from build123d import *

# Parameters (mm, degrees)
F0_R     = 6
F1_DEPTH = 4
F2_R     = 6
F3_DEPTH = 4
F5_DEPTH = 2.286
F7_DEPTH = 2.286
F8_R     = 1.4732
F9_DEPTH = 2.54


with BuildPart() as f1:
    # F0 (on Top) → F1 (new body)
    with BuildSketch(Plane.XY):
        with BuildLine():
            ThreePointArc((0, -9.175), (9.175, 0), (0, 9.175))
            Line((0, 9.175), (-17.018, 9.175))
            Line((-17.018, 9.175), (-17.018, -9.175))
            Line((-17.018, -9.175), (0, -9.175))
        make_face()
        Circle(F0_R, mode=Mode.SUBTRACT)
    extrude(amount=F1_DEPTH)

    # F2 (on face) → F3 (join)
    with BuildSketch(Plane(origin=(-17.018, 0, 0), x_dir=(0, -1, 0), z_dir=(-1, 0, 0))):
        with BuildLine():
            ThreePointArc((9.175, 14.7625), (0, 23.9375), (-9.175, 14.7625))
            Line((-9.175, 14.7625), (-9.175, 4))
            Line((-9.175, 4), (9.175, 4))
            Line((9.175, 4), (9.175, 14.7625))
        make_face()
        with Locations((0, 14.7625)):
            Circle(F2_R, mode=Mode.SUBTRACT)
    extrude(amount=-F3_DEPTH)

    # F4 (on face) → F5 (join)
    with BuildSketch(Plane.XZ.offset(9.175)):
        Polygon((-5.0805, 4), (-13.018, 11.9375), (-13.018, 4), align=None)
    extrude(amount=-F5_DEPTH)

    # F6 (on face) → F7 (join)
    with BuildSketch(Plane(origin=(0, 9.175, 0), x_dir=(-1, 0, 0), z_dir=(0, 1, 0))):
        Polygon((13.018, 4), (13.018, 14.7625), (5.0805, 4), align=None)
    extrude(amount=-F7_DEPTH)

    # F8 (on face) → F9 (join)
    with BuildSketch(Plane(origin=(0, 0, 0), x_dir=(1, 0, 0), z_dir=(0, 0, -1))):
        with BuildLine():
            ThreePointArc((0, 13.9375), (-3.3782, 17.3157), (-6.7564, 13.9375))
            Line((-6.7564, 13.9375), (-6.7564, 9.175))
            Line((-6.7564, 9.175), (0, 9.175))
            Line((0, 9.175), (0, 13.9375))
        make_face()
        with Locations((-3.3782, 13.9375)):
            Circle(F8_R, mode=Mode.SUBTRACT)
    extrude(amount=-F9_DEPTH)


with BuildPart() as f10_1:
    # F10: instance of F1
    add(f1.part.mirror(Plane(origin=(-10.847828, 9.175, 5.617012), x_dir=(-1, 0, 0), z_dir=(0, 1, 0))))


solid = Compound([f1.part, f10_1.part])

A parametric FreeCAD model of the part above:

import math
import FreeCAD as App
import Part
import Sketcher

V = App.Vector
Q = App.Units.Quantity


def add_polygon(sketch, points):
    """Adds a closed chain of lines whose ends are joined by coincident constraints."""
    first, n = sketch.GeometryCount, len(points)
    for a, b in zip(points, points[1:] + points[:1]):
        sketch.addGeometry(Part.LineSegment(App.Vector(*a, 0), App.Vector(*b, 0)), False)
    for i in range(n):
        sketch.addConstraint(Sketcher.Constraint("Coincident", first + i, 2, first + (i + 1) % n, 1))

doc = App.newDocument("Part")
body = doc.addObject("PartDesign::Body", "Body")

sketch1 = body.newObject("Sketcher::SketchObject", "Sketch")
sketch1.AttachmentSupport = (doc.getObject("XY_Plane"), [""])
sketch1.MapMode = "FlatFace"
sketch1.addGeometry([
    Part.ArcOfCircle(Part.Circle(V(0, 0, 0), V(0, 0, 1), 9.175), math.radians(-90), math.radians(90)),
    Part.LineSegment(V(0, 9.175, 0), V(-17.018, 9.175, 0)),
    Part.LineSegment(V(-17.018, 9.175, 0), V(-17.018, -9.175, 0)),
    Part.LineSegment(V(-17.018, -9.175, 0), V(0, -9.175, 0)),
    Part.Circle(V(0, 0, 0), V(0, 0, 1), 6),
], False)
sketch1.addConstraint([
    Sketcher.Constraint("Tangent", 0, 2, 1, 1),
    Sketcher.Constraint("Coincident", 1, 2, 2, 1),
    Sketcher.Constraint("Coincident", 2, 2, 3, 1),
    Sketcher.Constraint("Tangent", 3, 2, 0, 1),
    Sketcher.Constraint("Horizontal", 1),
    Sketcher.Constraint("Vertical", 2),
    Sketcher.Constraint("Horizontal", 3),
    Sketcher.Constraint("Coincident", 0, 3, -1, 1),
    Sketcher.Constraint("Coincident", 4, 3, -1, 1),
    Sketcher.Constraint("DistanceX", 1, 2, 1, 1, Q("0.67 in")),
    Sketcher.Constraint("Diameter", 4, 12.0),
    Sketcher.Constraint("Radius", 0, 9.175),
])
pad1 = body.newObject("PartDesign::Pad", "Pad")
pad1.Profile = sketch1
pad1.Length = 4

sketch2 = body.newObject("Sketcher::SketchObject", "Sketch001")
sketch2.AttachmentSupport = (doc.getObject("YZ_Plane"), [""])
sketch2.MapMode = "FlatFace"
sketch2.AttachmentOffset = App.Placement(V(0, 0, -0.67 * 25.4), App.Rotation())
sketch2.addGeometry([
    Part.ArcOfCircle(Part.Circle(V(0, 14.7625, 0), V(0, 0, 1), 9.175), math.radians(0), math.radians(180)),
    Part.LineSegment(V(9.175, 14.7625, 0), V(9.175, 4, 0)),
    Part.LineSegment(V(9.175, 4, 0), V(-9.175, 4, 0)),
    Part.LineSegment(V(-9.175, 4, 0), V(-9.175, 14.7625, 0)),
    Part.Circle(V(0, 14.7625, 0), V(0, 0, 1), 6),
], False)
sketch2.addConstraint([
    Sketcher.Constraint("Tangent", 0, 1, 1, 1),
    Sketcher.Constraint("Coincident", 1, 2, 2, 1),
    Sketcher.Constraint("Coincident", 2, 2, 3, 1),
    Sketcher.Constraint("Tangent", 3, 2, 0, 2),
    Sketcher.Constraint("Vertical", 1),
    Sketcher.Constraint("Horizontal", 2),
    Sketcher.Constraint("Vertical", 3),
    Sketcher.Constraint("Coincident", 4, 3, 0, 3),
    Sketcher.Constraint("PointOnObject", 0, 3, -2),
    Sketcher.Constraint("Diameter", 4, 12.0),
    Sketcher.Constraint("Radius", 0, 9.175),
    Sketcher.Constraint("DistanceY", 1, 2, 1, 1, 10.7625),
    Sketcher.Constraint("DistanceY", -1, 1, 0, 3, 14.7625),
])
pad2 = body.newObject("PartDesign::Pad", "Pad001")
pad2.Profile = sketch2
pad2.Length = 4

sketch3 = body.newObject("Sketcher::SketchObject", "Sketch002")
sketch3.AttachmentSupport = (doc.getObject("XZ_Plane"), [""])
sketch3.MapMode = "FlatFace"
sketch3.AttachmentOffset = App.Placement(V(0, 0, 9.175), App.Rotation())
add_polygon(sketch3, [(-5.0805, 4), (-13.018, 11.9375), (-13.018, 4)])
sketch3.addConstraint([
    Sketcher.Constraint("Vertical", 1),
    Sketcher.Constraint("Horizontal", 2),
    Sketcher.Constraint("Equal", 2, 1),
    Sketcher.Constraint("DistanceX", 2, 1, 2, 2, Q("0.3125 in")),
    Sketcher.Constraint("DistanceX", 0, 2, -1, 1, 13.018),
    Sketcher.Constraint("DistanceY", -1, 1, 0, 2, 11.9375),
])
pad3 = body.newObject("PartDesign::Pad", "Pad002")
pad3.Profile = sketch3
pad3.Length = Q("0.09 in")
pad3.Reversed = True

sketch4 = body.newObject("Sketcher::SketchObject", "Sketch003")
sketch4.AttachmentSupport = (doc.getObject("XZ_Plane"), [""])
sketch4.MapMode = "FlatFace"
sketch4.AttachmentOffset = App.Placement(V(0, 0, -9.175), App.Rotation())
add_polygon(sketch4, [(-13.018, 4), (-13.018, 14.7625), (-5.0805, 4)])
sketch4.addConstraint([
    Sketcher.Constraint("Vertical", 0),
    Sketcher.Constraint("Horizontal", 2),
    Sketcher.Constraint("DistanceX", 2, 2, 2, 1, Q("0.3125 in")),
    Sketcher.Constraint("DistanceY", 0, 1, 0, 2, 10.7625),
    Sketcher.Constraint("DistanceX", 0, 2, -1, 1, 13.018),
    Sketcher.Constraint("DistanceY", -1, 1, 0, 2, 14.7625),
])
pad4 = body.newObject("PartDesign::Pad", "Pad003")
pad4.Profile = sketch4
pad4.Length = Q("0.09 in")

sketch5 = body.newObject("Sketcher::SketchObject", "Sketch004")
sketch5.AttachmentSupport = (doc.getObject("XY_Plane"), [""])
sketch5.MapMode = "FlatFace"
sketch5.addGeometry([
    Part.ArcOfCircle(Part.Circle(V(-3.3782, -13.9375, 0), V(0, 0, 1), 3.3782), math.radians(180), math.radians(360)),
    Part.LineSegment(V(-6.7564, -13.9375, 0), V(-6.7564, -9.175, 0)),
    Part.LineSegment(V(-6.7564, -9.175, 0), V(0, -9.175, 0)),
    Part.LineSegment(V(0, -9.175, 0), V(0, -13.9375, 0)),
    Part.Circle(V(-3.3782, -13.9375, 0), V(0, 0, 1), 1.4732),
], False)
sketch5.addConstraint([
    Sketcher.Constraint("Tangent", 0, 1, 1, 1),
    Sketcher.Constraint("Coincident", 1, 2, 2, 1),
    Sketcher.Constraint("Coincident", 2, 2, 3, 1),
    Sketcher.Constraint("Tangent", 3, 2, 0, 2),
    Sketcher.Constraint("Vertical", 1),
    Sketcher.Constraint("Horizontal", 2),
    Sketcher.Constraint("Vertical", 3),
    Sketcher.Constraint("Coincident", 4, 3, 0, 3),
    Sketcher.Constraint("PointOnObject", 2, 2, -2),
    Sketcher.Constraint("Diameter", 4, Q("0.116 in")),
    Sketcher.Constraint("Radius", 0, Q("0.133 in")),
    Sketcher.Constraint("DistanceY", 1, 1, 1, 2, Q("0.1875 in")),
    Sketcher.Constraint("DistanceY", 0, 3, -1, 1, 13.9375),
])
pad5 = body.newObject("PartDesign::Pad", "Pad004")
pad5.Profile = sketch5
pad5.Length = Q("0.1 in")
body2 = doc.addObject("PartDesign::Body", "Body001")
doc.recompute()

mirroring = doc.addObject("Part::Mirroring", "Mirroring")
mirroring.Source = body
mirroring.Base = V(-10.847828, 9.175, 5.617012)
mirroring.Normal = V(0, 1, 0)
body2.BaseFeature = mirroring
doc.recompute()
mirroring.Visibility = False

doc.recompute()
